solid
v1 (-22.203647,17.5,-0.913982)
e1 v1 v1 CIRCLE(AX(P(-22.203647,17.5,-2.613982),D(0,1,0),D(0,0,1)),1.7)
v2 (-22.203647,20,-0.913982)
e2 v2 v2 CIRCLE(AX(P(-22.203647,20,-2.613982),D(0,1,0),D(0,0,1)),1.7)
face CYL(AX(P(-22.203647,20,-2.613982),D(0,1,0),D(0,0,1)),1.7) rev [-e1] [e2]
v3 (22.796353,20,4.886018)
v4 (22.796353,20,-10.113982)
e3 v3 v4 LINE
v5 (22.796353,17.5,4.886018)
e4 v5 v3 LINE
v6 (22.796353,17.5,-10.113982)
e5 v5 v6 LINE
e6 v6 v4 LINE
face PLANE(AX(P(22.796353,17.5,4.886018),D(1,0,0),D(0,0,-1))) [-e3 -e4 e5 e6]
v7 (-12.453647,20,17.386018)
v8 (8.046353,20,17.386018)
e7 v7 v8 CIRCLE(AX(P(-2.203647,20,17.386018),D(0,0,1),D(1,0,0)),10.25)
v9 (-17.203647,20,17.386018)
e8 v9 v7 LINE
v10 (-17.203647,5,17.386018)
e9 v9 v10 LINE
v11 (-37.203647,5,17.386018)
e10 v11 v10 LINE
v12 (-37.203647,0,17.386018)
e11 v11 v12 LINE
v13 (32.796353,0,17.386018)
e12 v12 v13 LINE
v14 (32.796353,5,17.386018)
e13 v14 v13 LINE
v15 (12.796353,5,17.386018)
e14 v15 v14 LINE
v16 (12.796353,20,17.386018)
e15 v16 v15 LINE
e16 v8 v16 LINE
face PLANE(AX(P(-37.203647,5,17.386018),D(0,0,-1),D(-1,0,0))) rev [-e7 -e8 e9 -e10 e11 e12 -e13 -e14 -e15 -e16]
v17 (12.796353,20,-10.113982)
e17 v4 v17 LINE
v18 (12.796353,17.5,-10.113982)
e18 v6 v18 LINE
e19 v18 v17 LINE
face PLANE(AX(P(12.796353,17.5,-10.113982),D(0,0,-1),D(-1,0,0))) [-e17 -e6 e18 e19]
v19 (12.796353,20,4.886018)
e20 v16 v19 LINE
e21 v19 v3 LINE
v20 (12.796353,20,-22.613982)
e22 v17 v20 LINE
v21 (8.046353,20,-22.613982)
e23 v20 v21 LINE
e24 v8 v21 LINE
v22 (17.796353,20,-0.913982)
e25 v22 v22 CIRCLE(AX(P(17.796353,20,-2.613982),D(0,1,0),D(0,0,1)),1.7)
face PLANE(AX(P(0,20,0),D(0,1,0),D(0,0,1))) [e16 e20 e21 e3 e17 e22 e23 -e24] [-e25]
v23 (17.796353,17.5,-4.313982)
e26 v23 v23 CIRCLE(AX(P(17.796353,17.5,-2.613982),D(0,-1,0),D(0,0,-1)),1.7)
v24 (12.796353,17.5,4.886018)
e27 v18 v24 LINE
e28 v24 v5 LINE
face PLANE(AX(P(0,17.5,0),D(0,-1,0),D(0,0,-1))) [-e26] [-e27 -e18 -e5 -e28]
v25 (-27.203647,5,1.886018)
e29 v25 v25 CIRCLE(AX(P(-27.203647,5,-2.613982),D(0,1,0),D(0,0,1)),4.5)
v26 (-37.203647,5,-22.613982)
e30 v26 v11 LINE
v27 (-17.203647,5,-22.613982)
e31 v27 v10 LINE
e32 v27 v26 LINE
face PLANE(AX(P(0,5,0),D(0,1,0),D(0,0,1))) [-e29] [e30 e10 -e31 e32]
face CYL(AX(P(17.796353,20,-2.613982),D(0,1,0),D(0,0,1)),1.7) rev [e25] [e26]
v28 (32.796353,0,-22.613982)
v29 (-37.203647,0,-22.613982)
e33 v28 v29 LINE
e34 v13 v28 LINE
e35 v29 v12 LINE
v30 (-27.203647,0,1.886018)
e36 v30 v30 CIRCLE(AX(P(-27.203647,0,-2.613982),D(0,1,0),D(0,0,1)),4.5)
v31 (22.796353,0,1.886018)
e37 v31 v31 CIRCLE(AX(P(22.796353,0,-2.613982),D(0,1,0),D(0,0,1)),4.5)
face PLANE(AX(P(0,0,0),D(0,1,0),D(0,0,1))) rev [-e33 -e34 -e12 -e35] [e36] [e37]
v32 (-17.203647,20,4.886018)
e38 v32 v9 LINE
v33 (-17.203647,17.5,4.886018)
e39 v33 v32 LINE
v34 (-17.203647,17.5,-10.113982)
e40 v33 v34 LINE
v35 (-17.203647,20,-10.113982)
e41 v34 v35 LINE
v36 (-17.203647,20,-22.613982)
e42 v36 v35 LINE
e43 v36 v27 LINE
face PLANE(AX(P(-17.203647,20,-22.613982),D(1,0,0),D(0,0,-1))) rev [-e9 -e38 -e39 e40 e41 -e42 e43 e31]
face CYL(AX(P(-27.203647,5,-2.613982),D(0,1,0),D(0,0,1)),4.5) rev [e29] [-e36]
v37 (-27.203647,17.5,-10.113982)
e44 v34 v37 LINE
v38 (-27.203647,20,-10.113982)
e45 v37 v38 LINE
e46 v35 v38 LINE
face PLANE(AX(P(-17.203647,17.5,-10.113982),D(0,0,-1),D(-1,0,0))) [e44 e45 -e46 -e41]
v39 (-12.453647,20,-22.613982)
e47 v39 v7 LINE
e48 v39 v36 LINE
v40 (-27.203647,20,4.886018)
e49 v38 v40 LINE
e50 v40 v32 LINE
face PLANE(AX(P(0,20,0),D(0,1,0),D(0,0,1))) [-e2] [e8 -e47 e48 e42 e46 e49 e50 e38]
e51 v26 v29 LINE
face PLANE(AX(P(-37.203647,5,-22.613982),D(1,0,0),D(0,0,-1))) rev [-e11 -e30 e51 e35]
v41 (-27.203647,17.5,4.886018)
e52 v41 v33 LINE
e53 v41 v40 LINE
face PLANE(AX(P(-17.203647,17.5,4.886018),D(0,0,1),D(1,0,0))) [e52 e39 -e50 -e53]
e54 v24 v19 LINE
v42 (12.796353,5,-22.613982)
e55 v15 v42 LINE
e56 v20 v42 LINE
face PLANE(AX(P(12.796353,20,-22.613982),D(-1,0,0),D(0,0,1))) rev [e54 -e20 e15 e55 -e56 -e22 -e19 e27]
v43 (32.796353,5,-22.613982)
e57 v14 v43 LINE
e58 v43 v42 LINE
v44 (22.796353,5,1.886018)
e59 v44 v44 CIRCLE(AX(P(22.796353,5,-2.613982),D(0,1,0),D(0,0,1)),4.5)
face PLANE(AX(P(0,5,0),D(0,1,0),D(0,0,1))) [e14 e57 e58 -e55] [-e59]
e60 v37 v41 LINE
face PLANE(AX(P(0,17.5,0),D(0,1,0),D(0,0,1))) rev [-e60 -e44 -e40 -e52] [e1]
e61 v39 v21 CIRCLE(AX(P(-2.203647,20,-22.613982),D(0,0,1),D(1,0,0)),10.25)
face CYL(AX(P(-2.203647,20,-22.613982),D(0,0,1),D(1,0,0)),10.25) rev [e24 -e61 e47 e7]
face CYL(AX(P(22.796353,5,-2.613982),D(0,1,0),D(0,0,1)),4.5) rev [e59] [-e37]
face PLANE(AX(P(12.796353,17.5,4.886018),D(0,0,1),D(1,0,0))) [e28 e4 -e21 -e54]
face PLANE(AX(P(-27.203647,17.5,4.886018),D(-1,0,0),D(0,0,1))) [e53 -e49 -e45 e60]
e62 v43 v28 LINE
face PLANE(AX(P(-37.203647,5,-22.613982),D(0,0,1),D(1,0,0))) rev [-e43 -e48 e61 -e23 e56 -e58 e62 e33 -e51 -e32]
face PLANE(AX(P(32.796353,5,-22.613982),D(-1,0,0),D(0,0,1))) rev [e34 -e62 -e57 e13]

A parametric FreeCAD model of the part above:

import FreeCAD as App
import Part
import Sketcher
from FreeCAD import Vector
Q = App.Units.Quantity


def add_polygon(sketch, points):
    """Adds a closed chain of lines whose ends are joined by coincident constraints."""
    first, n = sketch.GeometryCount, len(points)
    for a, b in zip(points, points[1:] + points[:1]):
        sketch.addGeometry(Part.LineSegment(App.Vector(*a, 0), App.Vector(*b, 0)), False)
    for i in range(n):
        sketch.addConstraint(Sketcher.Constraint("Coincident", first + i, 2, first + (i + 1) % n, 1))

doc = App.newDocument("Part")
params = doc.addObject("Spreadsheet::Sheet", "Params")
for row, (alias, value) in enumerate([
    ("sketch1_width", "70 mm"),
    ("sketch1_height", "40 mm"),
    ("pad1_length", "5 mm"),
    ("sketch2_width", "30 mm"),
    ("sketch2_height", "40 mm"),
    ("pad2_length", "15 mm"),
    ("sketch3_diameter", "20.5 mm"),
    ("sketch4_width", "10 mm"),
    ("sketch4_height", "15 mm"),
    ("pad3_length", "2.5 mm"),
    ("sketch5_width", "10 mm"),
    ("sketch5_height", "15 mm"),
    ("pad4_length", "2.5 mm"),
    ("sketch6_diameter", "3.4 mm"),
    ("hole_diameter", "3.4 mm"),
    ("hole_depth", "2.5 mm"),
    ("sketch7_diameter", "9 mm"),
    ("hole2_diameter", "9 mm"),
    ("hole2_depth", "5 mm"),
], start=1):
    params.set(f"A{row}", alias)
    params.set(f"B{row}", "=" + value)
    params.setAlias(f"B{row}", alias)

body = doc.addObject("PartDesign::Body", "Body")

# Sketch on XZ plane
sketch1 = body.newObject("Sketcher::SketchObject", "Sketch")
sketch1.AttachmentSupport = (doc.getObject("XZ_Plane"), [""])
sketch1.MapMode = "FlatFace"
add_polygon(sketch1, [(-37.203647, -22.613982), (-37.203647, 17.386018), (32.796353, 17.386018), (32.796353, -22.613982)])  # lines 0-3
sketch1.addConstraint([
    Sketcher.Constraint("Vertical", 0),
    Sketcher.Constraint("Horizontal", 1),
    Sketcher.Constraint("Vertical", 2),
    Sketcher.Constraint("Horizontal", 3),
    Sketcher.Constraint("DistanceX", 1, 1, 1, 2, Q("70 mm")),
    Sketcher.Constraint("DistanceY", 0, 1, 0, 2, Q("40 mm")),
    Sketcher.Constraint("DistanceY", -1, 1, 0, 2, Q("17.386018 mm")),
    Sketcher.Constraint("DistanceX", 0, 2, -1, 1, Q("37.203647 mm")),
])
sketch1.setExpression("Constraints[8]", "Params.sketch1_width")
sketch1.setExpression("Constraints[9]", "Params.sketch1_height")
pad1 = body.newObject("PartDesign::Pad", "Pad")
pad1.Profile = sketch1
pad1.setExpression("Length", "Params.pad1_length")
pad1.Reversed = True

# Sketch on XZ plane
sketch2 = body.newObject("Sketcher::SketchObject", "Sketch001")
sketch2.AttachmentSupport = (doc.getObject("XZ_Plane"), [""])
sketch2.MapMode = "FlatFace"
sketch2.AttachmentOffset = App.Placement(Vector(0, 0, -5), App.Rotation())
add_polygon(sketch2, [(-17.203647, -22.613982), (-17.203647, 17.386018), (12.796353, 17.386018), (12.796353, -22.613982)])  # lines 0-3
sketch2.addConstraint([
    Sketcher.Constraint("Vertical", 0),
    Sketcher.Constraint("Horizontal", 1),
    Sketcher.Constraint("Vertical", 2),
    Sketcher.Constraint("Horizontal", 3),
    Sketcher.Constraint("DistanceX", 1, 1, 1, 2, Q("30 mm")),
    Sketcher.Constraint("DistanceY", 0, 1, 0, 2, Q("40 mm")),
    Sketcher.Constraint("DistanceY", -1, 1, 0, 2, Q("17.386018 mm")),
    Sketcher.Constraint("DistanceX", 0, 2, -1, 1, Q("17.203647 mm")),
])
sketch2.setExpression("Constraints[8]", "Params.sketch2_width")
sketch2.setExpression("Constraints[9]", "Params.sketch2_height")
pad2 = body.newObject("PartDesign::Pad", "Pad001")
pad2.Profile = sketch2
pad2.setExpression("Length", "Params.pad2_length")
pad2.Reversed = True

# Sketch on XY plane
sketch3 = body.newObject("Sketcher::SketchObject", "Sketch002")
sketch3.AttachmentSupport = (doc.getObject("XY_Plane"), [""])
sketch3.MapMode = "FlatFace"
sketch3.AttachmentOffset = App.Placement(Vector(0, 0, 17.386018), App.Rotation())
sketch3.addGeometry(Part.Circle(Vector(-2.203647, 20, 0), Vector(0, 0, 1), 10.25), False)
sketch3.addConstraint([
    Sketcher.Constraint("Diameter", 0, Q("20.5 mm")),
    Sketcher.Constraint("DistanceY", -1, 1, 0, 3, Q("20 mm")),
    Sketcher.Constraint("DistanceX", 0, 3, -1, 1, Q("2.203647 mm")),
])
sketch3.setExpression("Constraints[0]", "Params.sketch3_diameter")
pocket1 = body.newObject("PartDesign::Pocket", "Pocket")
pocket1.Profile = sketch3
pocket1.Type = "ThroughAll"

# Sketch on XZ plane
sketch4 = body.newObject("Sketcher::SketchObject", "Sketch003")
sketch4.AttachmentSupport = (doc.getObject("XZ_Plane"), [""])
sketch4.MapMode = "FlatFace"
sketch4.AttachmentOffset = App.Placement(Vector(0, 0, -20), App.Rotation())
add_polygon(sketch4, [(-27.203647, -10.113982), (-27.203647, 4.886018), (-17.203647, 4.886018), (-17.203647, -10.113982)])  # lines 0-3
sketch4.addConstraint([
    Sketcher.Constraint("Vertical", 0),
    Sketcher.Constraint("Horizontal", 1),
    Sketcher.Constraint("Vertical", 2),
    Sketcher.Constraint("Horizontal", 3),
    Sketcher.Constraint("DistanceX", 1, 1, 1, 2, Q("10 mm")),
    Sketcher.Constraint("DistanceY", 0, 1, 0, 2, Q("15 mm")),
    Sketcher.Constraint("DistanceY", -1, 1, 0, 2, Q("4.886018 mm")),
    Sketcher.Constraint("DistanceX", 0, 2, -1, 1, Q("27.203647 mm")),
])
sketch4.setExpression("Constraints[8]", "Params.sketch4_width")
sketch4.setExpression("Constraints[9]", "Params.sketch4_height")
pad3 = body.newObject("PartDesign::Pad", "Pad002")
pad3.Profile = sketch4
pad3.setExpression("Length", "Params.pad3_length")

# Sketch on XZ plane
sketch5 = body.newObject("Sketcher::SketchObject", "Sketch004")
sketch5.AttachmentSupport = (doc.getObject("XZ_Plane"), [""])
sketch5.MapMode = "FlatFace"
sketch5.AttachmentOffset = App.Placement(Vector(0, 0, -20), App.Rotation())
add_polygon(sketch5, [(12.796353, -10.113982), (12.796353, 4.886018), (22.796353, 4.886018), (22.796353, -10.113982)])  # lines 0-3
sketch5.addConstraint([
    Sketcher.Constraint("Vertical", 0),
    Sketcher.Constraint("Horizontal", 1),
    Sketcher.Constraint("Vertical", 2),
    Sketcher.Constraint("Horizontal", 3),
    Sketcher.Constraint("DistanceX", 1, 1, 1, 2, Q("10 mm")),
    Sketcher.Constraint("DistanceY", 0, 1, 0, 2, Q("15 mm")),
    Sketcher.Constraint("DistanceY", -1, 1, 0, 2, Q("4.886018 mm")),
    Sketcher.Constraint("DistanceX", -1, 1, 0, 2, Q("12.796353 mm")),
])
sketch5.setExpression("Constraints[8]", "Params.sketch5_width")
sketch5.setExpression("Constraints[9]", "Params.sketch5_height")
pad4 = body.newObject("PartDesign::Pad", "Pad003")
pad4.Profile = sketch5
pad4.setExpression("Length", "Params.pad4_length")

# Sketch on XZ plane
sketch6 = body.newObject("Sketcher::SketchObject", "Sketch005")
sketch6.AttachmentSupport = (doc.getObject("XZ_Plane"), [""])
sketch6.MapMode = "FlatFace"
sketch6.AttachmentOffset = App.Placement(Vector(0, 0, -20), App.Rotation())
sketch6.addGeometry([
    Part.Circle(Vector(17.796353, -2.613982, 0), Vector(0, 0, 1), 1.7),
    Part.Circle(Vector(-22.203647, -2.613982, 0), Vector(0, 0, 1), 1.7),
], False)
sketch6.addConstraint([
    Sketcher.Constraint("Equal", 0, 1),
    Sketcher.Constraint("Horizontal", 0, 3, 1, 3),
    Sketcher.Constraint("Diameter", 0, Q("3.4 mm")),
    Sketcher.Constraint("DistanceX", 1, 3, 0, 3, Q("40 mm")),
    Sketcher.Constraint("DistanceY", 0, 3, -1, 1, Q("2.613982 mm")),
    Sketcher.Constraint("DistanceX", -1, 1, 0, 3, Q("17.796353 mm")),
])
sketch6.setExpression("Constraints[2]", "Params.sketch6_diameter")
doc.recompute()
hole = body.newObject("PartDesign::Hole", "Hole")
hole.Profile = sketch6
hole.ThreadType = "None"
hole.setExpression("Diameter", "Params.hole_diameter")
hole.DepthType = "Dimension"
hole.setExpression("Depth", "Params.hole_depth")
hole.DrillPoint = "Flat"
hole.Reversed = True

# Sketch on XZ plane
sketch7 = body.newObject("Sketcher::SketchObject", "Sketch006")
sketch7.AttachmentSupport = (doc.getObject("XZ_Plane"), [""])
sketch7.MapMode = "FlatFace"
sketch7.AttachmentOffset = App.Placement(Vector(0, 0, -5), App.Rotation())
sketch7.addGeometry([
    Part.Circle(Vector(22.796353, -2.613982, 0), Vector(0, 0, 1), 4.5),
    Part.Circle(Vector(-27.203647, -2.613982, 0), Vector(0, 0, 1), 4.5),
], False)
sketch7.addConstraint([
    Sketcher.Constraint("Equal", 0, 1),
    Sketcher.Constraint("Horizontal", 0, 3, 1, 3),
    Sketcher.Constraint("Diameter", 0, Q("9 mm")),
    Sketcher.Constraint("DistanceX", 1, 3, 0, 3, Q("50 mm")),
    Sketcher.Constraint("DistanceY", 0, 3, -1, 1, Q("2.613982 mm")),
    Sketcher.Constraint("DistanceX", -1, 1, 0, 3, Q("22.796353 mm")),
])
sketch7.setExpression("Constraints[2]", "Params.sketch7_diameter")
doc.recompute()
hole2 = body.newObject("PartDesign::Hole", "Hole001")
hole2.Profile = sketch7
hole2.ThreadType = "None"
hole2.setExpression("Diameter", "Params.hole2_diameter")
hole2.DepthType = "Dimension"
hole2.setExpression("Depth", "Params.hole2_depth")
hole2.DrillPoint = "Flat"
hole2.Reversed = True

doc.recompute()
